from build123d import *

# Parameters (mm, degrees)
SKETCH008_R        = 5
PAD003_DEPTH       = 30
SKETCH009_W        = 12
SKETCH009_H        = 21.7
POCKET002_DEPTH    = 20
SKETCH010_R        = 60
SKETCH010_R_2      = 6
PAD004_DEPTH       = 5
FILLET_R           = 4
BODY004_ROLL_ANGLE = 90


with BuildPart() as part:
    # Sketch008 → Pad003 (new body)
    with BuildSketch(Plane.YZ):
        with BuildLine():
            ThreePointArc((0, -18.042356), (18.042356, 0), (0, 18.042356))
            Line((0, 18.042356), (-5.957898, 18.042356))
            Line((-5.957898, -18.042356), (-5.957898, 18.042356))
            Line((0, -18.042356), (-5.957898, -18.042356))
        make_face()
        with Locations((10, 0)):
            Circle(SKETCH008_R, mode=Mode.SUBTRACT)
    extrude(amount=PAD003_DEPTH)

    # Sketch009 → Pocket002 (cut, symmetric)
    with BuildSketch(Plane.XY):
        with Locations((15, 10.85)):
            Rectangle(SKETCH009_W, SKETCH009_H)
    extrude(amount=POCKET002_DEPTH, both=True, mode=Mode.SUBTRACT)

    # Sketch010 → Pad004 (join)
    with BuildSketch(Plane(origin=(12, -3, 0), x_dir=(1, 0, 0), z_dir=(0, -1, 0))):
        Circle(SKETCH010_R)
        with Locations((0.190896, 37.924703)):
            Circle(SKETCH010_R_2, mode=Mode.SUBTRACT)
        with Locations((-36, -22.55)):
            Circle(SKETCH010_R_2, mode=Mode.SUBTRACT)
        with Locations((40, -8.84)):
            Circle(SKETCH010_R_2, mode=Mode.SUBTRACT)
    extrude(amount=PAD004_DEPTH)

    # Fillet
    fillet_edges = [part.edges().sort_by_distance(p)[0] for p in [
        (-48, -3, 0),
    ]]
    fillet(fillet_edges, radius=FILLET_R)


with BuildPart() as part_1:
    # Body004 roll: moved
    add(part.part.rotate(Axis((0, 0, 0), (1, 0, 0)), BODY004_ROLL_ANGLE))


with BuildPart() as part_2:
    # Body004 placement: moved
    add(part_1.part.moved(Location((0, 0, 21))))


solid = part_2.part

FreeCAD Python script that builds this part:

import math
import FreeCAD as App
import Part
import Sketcher

V = App.Vector


def edges_at(feature, points):
    """Names of the edges that pass closest to the given points."""
    edges = feature.Shape.Edges
    near = lambda p: min(range(len(edges)), key=lambda i: edges[i].distToShape(Part.Vertex(*p))[0])
    return sorted({f"Edge{near(p) + 1}" for p in points})

doc = App.newDocument("Part")
body = doc.addObject("PartDesign::Body", "Body")

sketch1 = body.newObject("Sketcher::SketchObject", "Sketch")
sketch1.AttachmentSupport = (doc.getObject("YZ_Plane"), [""])
sketch1.MapMode = "FlatFace"
sketch1.addGeometry([
    Part.ArcOfCircle(Part.Circle(V(0, 0, 0), V(0, 0, 1), 18.042356), math.radians(-90), math.radians(90)),
    Part.LineSegment(V(0, 18.042356, 0), V(-5.957898, 18.042356, 0)),
    Part.LineSegment(V(-5.957898, 18.042356, 0), V(-5.957898, -18.042356, 0)),
    Part.LineSegment(V(-5.957898, -18.042356, 0), V(0, -18.042356, 0)),
    Part.Circle(V(10, 0, 0), V(0, 0, 1), 5),
], False)
sketch1.addConstraint([
    Sketcher.Constraint("Tangent", 0, 2, 1, 1),
    Sketcher.Constraint("Coincident", 1, 2, 2, 1),
    Sketcher.Constraint("Coincident", 2, 2, 3, 1),
    Sketcher.Constraint("Tangent", 3, 2, 0, 1),
    Sketcher.Constraint("Horizontal", 1),
    Sketcher.Constraint("Vertical", 2),
    Sketcher.Constraint("Horizontal", 3),
    Sketcher.Constraint("Coincident", 0, 3, -1, 1),
    Sketcher.Constraint("PointOnObject", 4, 3, -1),
    Sketcher.Constraint("Diameter", 4, 10.0),
    Sketcher.Constraint("DistanceX", -1, 1, 4, 3, 10.0),
    Sketcher.Constraint("Radius", 0, 18.042356),
    Sketcher.Constraint("DistanceX", 1, 2, 0, 2, 5.957898),
])
pad1 = body.newObject("PartDesign::Pad", "Pad")
pad1.Profile = sketch1
pad1.Length = 30

sketch2 = body.newObject("Sketcher::SketchObject", "Sketch001")
sketch2.AttachmentSupport = (doc.getObject("XY_Plane"), [""])
sketch2.MapMode = "FlatFace"
sketch2.addGeometry([
    Part.LineSegment(V(9, 21.7, 0), V(9, 0, 0)),
    Part.LineSegment(V(9, 0, 0), V(21, 0, 0)),
    Part.LineSegment(V(21, 0, 0), V(21, 21.7, 0)),
    Part.LineSegment(V(21, 21.7, 0), V(9, 21.7, 0)),
], False)
sketch2.addConstraint([
    Sketcher.Constraint("Coincident", 0, 2, 1, 1),
    Sketcher.Constraint("Coincident", 1, 2, 2, 1),
    Sketcher.Constraint("Coincident", 2, 2, 3, 1),
    Sketcher.Constraint("Coincident", 3, 2, 0, 1),
    Sketcher.Constraint("Vertical", 0),
    Sketcher.Constraint("Horizontal", 1),
    Sketcher.Constraint("Vertical", 2),
    Sketcher.Constraint("Horizontal", 3),
    Sketcher.Constraint("PointOnObject", 0, 2, -1),
    Sketcher.Constraint("DistanceX", 1, 1, 1, 2, 12.0),
    Sketcher.Constraint("DistanceY", 0, 2, 0, 1, 21.7),
    Sketcher.Constraint("DistanceX", -1, 1, 0, 2, 9.0),
])
pocket1 = body.newObject("PartDesign::Pocket", "Pocket")
pocket1.Profile = sketch2
pocket1.Length = 40
pocket1.Midplane = True

sketch3 = body.newObject("Sketcher::SketchObject", "Sketch002")
sketch3.AttachmentSupport = (doc.getObject("XZ_Plane"), [""])
sketch3.MapMode = "FlatFace"
sketch3.AttachmentOffset = App.Placement(V(0, 0, 3), App.Rotation())
sketch3.addGeometry([
    Part.Circle(V(12, 0, 0), V(0, 0, 1), 60),
    Part.Circle(V(-24, -22.55, 0), V(0, 0, 1), 6),
    Part.Circle(V(52, -8.84, 0), V(0, 0, 1), 6),
    Part.Circle(V(12.190896, 37.924703, 0), V(0, 0, 1), 6),
], False)
sketch3.addConstraint([
    Sketcher.Constraint("Equal", 1, 2),
    Sketcher.Constraint("Equal", 2, 3),
    Sketcher.Constraint("PointOnObject", 0, 3, -1),
    Sketcher.Constraint("Diameter", 0, 120.0),
    Sketcher.Constraint("Diameter", 1, 12.0),
    Sketcher.Constraint("DistanceX", -1, 1, 0, 3, 12.0),
    Sketcher.Constraint("DistanceX", 1, 3, -1, 1, 24.0),
    Sketcher.Constraint("DistanceX", -1, 1, 2, 3, 52.0),
    Sketcher.Constraint("DistanceY", 1, 3, -1, 1, 22.55),
    Sketcher.Constraint("DistanceY", 2, 3, -1, 1, 8.84),
    Sketcher.Constraint("DistanceX", -1, 1, 3, 3, 12.190896),
    Sketcher.Constraint("DistanceY", -1, 1, 3, 3, 37.924703),
])
pad2 = body.newObject("PartDesign::Pad", "Pad001")
pad2.Profile = sketch3
pad2.Length = 5
doc.recompute()

fillet = body.newObject("PartDesign::Fillet", "Fillet")
fillet.Base = (pad2, edges_at(pad2, [(-48, -3, 0)]))
fillet.Radius = 4
body2 = doc.addObject("PartDesign::Body", "Body001")
doc.recompute()

body.Placement = App.Placement(V(0, 0, 0), App.Rotation(V(1, 0, 0), 90))
boolean = body2.newObject("PartDesign::Boolean", "Boolean")
boolean.Type = "Fuse"
boolean.addObjects([body])
body3 = doc.addObject("PartDesign::Body", "Body002")
doc.recompute()

body2.Placement = App.Placement(V(0, 0, 21), App.Rotation(V(0, 0, 1), 0))
boolean2 = body3.newObject("PartDesign::Boolean", "Boolean001")
boolean2.Type = "Fuse"
boolean2.addObjects([body2])

doc.recompute()
